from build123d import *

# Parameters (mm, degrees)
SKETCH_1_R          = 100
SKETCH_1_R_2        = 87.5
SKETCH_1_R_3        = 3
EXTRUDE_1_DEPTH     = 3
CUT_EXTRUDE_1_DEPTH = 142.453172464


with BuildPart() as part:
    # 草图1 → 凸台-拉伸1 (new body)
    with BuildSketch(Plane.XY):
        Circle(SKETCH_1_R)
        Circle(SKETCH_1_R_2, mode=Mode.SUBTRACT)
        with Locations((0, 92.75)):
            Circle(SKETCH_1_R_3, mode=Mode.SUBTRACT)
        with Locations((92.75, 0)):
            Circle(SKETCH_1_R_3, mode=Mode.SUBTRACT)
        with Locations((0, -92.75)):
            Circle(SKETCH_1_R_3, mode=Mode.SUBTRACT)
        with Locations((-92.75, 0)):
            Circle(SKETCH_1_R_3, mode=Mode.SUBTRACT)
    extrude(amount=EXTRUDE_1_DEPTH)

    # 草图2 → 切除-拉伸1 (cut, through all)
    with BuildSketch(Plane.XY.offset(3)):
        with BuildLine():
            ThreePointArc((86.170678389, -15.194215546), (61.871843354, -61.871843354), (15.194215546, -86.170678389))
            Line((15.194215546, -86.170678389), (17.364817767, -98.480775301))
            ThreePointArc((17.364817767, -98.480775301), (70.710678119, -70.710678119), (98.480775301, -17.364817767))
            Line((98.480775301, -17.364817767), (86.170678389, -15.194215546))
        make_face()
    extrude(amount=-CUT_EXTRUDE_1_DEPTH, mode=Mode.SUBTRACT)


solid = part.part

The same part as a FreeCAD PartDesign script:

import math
import FreeCAD as App
import Part
import Sketcher

V = App.Vector
Q = App.Units.Quantity

doc = App.newDocument("Part")
body = doc.addObject("PartDesign::Body", "Body")

sketch1 = body.newObject("Sketcher::SketchObject", "Sketch")
sketch1.AttachmentSupport = (doc.getObject("XY_Plane"), [""])
sketch1.MapMode = "FlatFace"
sketch1.addGeometry([
    Part.Circle(V(0, 0, 0), V(0, 0, 1), 100),
    Part.Circle(V(0, -92.75, 0), V(0, 0, 1), 3),
    Part.Circle(V(-92.75, 0, 0), V(0, 0, 1), 3),
    Part.Circle(V(0, 0, 0), V(0, 0, 1), 87.5),
    Part.Circle(V(92.75, 0, 0), V(0, 0, 1), 3),
    Part.Circle(V(0, 92.75, 0), V(0, 0, 1), 3),
], False)
sketch1.addConstraint([
    Sketcher.Constraint("Coincident", 0, 3, -1, 1),
    Sketcher.Constraint("Coincident", 3, 3, -1, 1),
    Sketcher.Constraint("Equal", 1, 2),
    Sketcher.Constraint("Equal", 2, 4),
    Sketcher.Constraint("Equal", 4, 5),
    Sketcher.Constraint("Symmetric", 2, 3, 4, 3, -1, 1),
    Sketcher.Constraint("Symmetric", 1, 3, 5, 3, -1, 1),
    Sketcher.Constraint("PointOnObject", 1, 3, -2),
    Sketcher.Constraint("PointOnObject", 2, 3, -1),
    Sketcher.Constraint("Diameter", 0, Q("200 mm")),
    Sketcher.Constraint("Diameter", 1, Q("6 mm")),
    Sketcher.Constraint("Diameter", 3, Q("175 mm")),
    Sketcher.Constraint("DistanceX", 2, 3, 4, 3, Q("185.5 mm")),
    Sketcher.Constraint("DistanceY", 1, 3, 5, 3, Q("185.5 mm")),
])
pad1 = body.newObject("PartDesign::Pad", "Pad")
pad1.Profile = sketch1
pad1.Length = 3

sketch2 = body.newObject("Sketcher::SketchObject", "Sketch001")
sketch2.AttachmentSupport = (doc.getObject("XY_Plane"), [""])
sketch2.MapMode = "FlatFace"
sketch2.AttachmentOffset = App.Placement(V(0, 0, 3), App.Rotation())
sketch2.addGeometry([
    Part.ArcOfCircle(Part.Circle(V(0, 0, 0), V(0, 0, 1), 87.5), math.radians(-80), math.radians(-10)),
    Part.LineSegment(V(15.194216, -86.170678, 0), V(17.364818, -98.480775, 0)),
    Part.ArcOfCircle(Part.Circle(V(0, 0, 0), V(0, 0, 1), 100), math.radians(-80), math.radians(-10)),
    Part.LineSegment(V(98.480775, -17.364818, 0), V(86.170678, -15.194216, 0)),
], False)
sketch2.addConstraint([
    Sketcher.Constraint("Coincident", 0, 1, 1, 1),
    Sketcher.Constraint("Coincident", 1, 2, 2, 1),
    Sketcher.Constraint("Coincident", 2, 2, 3, 1),
    Sketcher.Constraint("Coincident", 3, 2, 0, 2),
    Sketcher.Constraint("Coincident", 0, 3, -1, 1),
    Sketcher.Constraint("Coincident", 2, 3, -1, 1),
    Sketcher.Constraint("Radius", 2, Q("100 mm")),
    Sketcher.Constraint("Radius", 0, Q("87.5 mm")),
    Sketcher.Constraint("Angle", 1, Q("-80 deg")),
    Sketcher.Constraint("Angle", 3, Q("170 deg")),
    Sketcher.Constraint("DistanceY", 0, 1, -1, 1, Q("86.170678 mm")),
    Sketcher.Constraint("DistanceX", -1, 1, 3, 2, Q("86.170678 mm")),
])
pocket1 = body.newObject("PartDesign::Pocket", "Pocket")
pocket1.Profile = sketch2
pocket1.Type = "ThroughAll"

doc.recompute()
